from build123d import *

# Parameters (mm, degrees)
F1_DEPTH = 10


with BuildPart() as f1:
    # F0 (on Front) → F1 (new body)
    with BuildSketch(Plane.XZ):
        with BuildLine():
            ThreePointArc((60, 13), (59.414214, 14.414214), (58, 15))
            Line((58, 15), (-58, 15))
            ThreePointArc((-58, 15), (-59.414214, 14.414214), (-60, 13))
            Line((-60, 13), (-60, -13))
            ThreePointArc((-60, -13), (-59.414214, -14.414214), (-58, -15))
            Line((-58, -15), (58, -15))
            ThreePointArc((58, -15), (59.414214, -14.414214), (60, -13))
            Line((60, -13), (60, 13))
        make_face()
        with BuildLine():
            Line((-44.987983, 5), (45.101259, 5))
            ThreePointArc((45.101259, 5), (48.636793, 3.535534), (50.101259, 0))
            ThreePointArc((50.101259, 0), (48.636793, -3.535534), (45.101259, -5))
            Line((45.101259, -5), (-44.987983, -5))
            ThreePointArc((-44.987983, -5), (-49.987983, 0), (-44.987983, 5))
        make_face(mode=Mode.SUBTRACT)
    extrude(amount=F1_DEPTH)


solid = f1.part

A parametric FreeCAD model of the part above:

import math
import FreeCAD as App
import Part
import Sketcher

V = App.Vector
Q = App.Units.Quantity

doc = App.newDocument("Part")
body = doc.addObject("PartDesign::Body", "Body")

# Sketch on XZ plane
sketch1 = body.newObject("Sketcher::SketchObject", "Sketch")
sketch1.AttachmentSupport = (doc.getObject("XZ_Plane"), [""])
sketch1.MapMode = "FlatFace"
sketch1.addGeometry([
    Part.ArcOfCircle(Part.Circle(V(58, 13, 0), V(0, 0, 1), 2), math.radians(0), math.radians(90)),  # 0
    Part.LineSegment(V(58, 15, 0), V(-58, 15, 0)),  # 1
    Part.ArcOfCircle(Part.Circle(V(-58, 13, 0), V(0, 0, 1), 2), math.radians(90), math.radians(180)),  # 2
    Part.LineSegment(V(-60, 13, 0), V(-60, -13, 0)),  # 3
    Part.ArcOfCircle(Part.Circle(V(-58, -13, 0), V(0, 0, 1), 2), math.radians(180), math.radians(270)),  # 4
    Part.LineSegment(V(-58, -15, 0), V(58, -15, 0)),  # 5
    Part.ArcOfCircle(Part.Circle(V(58, -13, 0), V(0, 0, 1), 2), math.radians(-90), math.radians(0)),  # 6
    Part.LineSegment(V(60, -13, 0), V(60, 13, 0)),  # 7
    Part.ArcOfCircle(Part.Circle(V(-45, 0, 0), V(0, 0, 1), 5), math.radians(90), math.radians(270)),  # 8
    Part.LineSegment(V(-45, 5, 0), V(45.1, 5, 0)),  # 9
    Part.ArcOfCircle(Part.Circle(V(45.1, 0, 0), V(0, 0, 1), 5), math.radians(0), math.radians(90)),  # 10
    Part.ArcOfCircle(Part.Circle(V(45.1, 0, 0), V(0, 0, 1), 5), math.radians(-90), math.radians(0)),  # 11
    Part.LineSegment(V(45.1, -5, 0), V(-45, -5, 0)),  # 12
], False)
sketch1.addConstraint([
    Sketcher.Constraint("Tangent", 0, 2, 1, 1),
    Sketcher.Constraint("Tangent", 1, 2, 2, 1),
    Sketcher.Constraint("Tangent", 2, 2, 3, 1),
    Sketcher.Constraint("Tangent", 3, 2, 4, 1),
    Sketcher.Constraint("Tangent", 4, 2, 5, 1),
    Sketcher.Constraint("Tangent", 5, 2, 6, 1),
    Sketcher.Constraint("Tangent", 6, 2, 7, 1),
    Sketcher.Constraint("Tangent", 7, 2, 0, 1),
    Sketcher.Constraint("Tangent", 8, 1, 9, 1),
    Sketcher.Constraint("Tangent", 9, 2, 10, 2),
    Sketcher.Constraint("Tangent", 10, 1, 11, 2),
    Sketcher.Constraint("Tangent", 11, 1, 12, 1),
    Sketcher.Constraint("Tangent", 12, 2, 8, 2),
    Sketcher.Constraint("Horizontal", 1),
    Sketcher.Constraint("Vertical", 3),
    Sketcher.Constraint("Horizontal", 5),
    Sketcher.Constraint("Vertical", 7),
    Sketcher.Constraint("Horizontal", 9),
    Sketcher.Constraint("Horizontal", 12),
    Sketcher.Constraint("Equal", 0, 2),
    Sketcher.Constraint("Equal", 2, 4),
    Sketcher.Constraint("Equal", 4, 6),
    Sketcher.Constraint("Equal", 8, 10),
    Sketcher.Constraint("Symmetric", 0, 3, 4, 3, -1, 1),
    Sketcher.Constraint("PointOnObject", 8, 3, -1),
    Sketcher.Constraint("PointOnObject", 10, 1, -1),
    Sketcher.Constraint("Radius", 0, Q("1.999999 mm")),
    Sketcher.Constraint("Radius", 8, Q("5 mm")),
    Sketcher.Constraint("DistanceX", 1, 2, 1, 1, Q("116 mm")),
    Sketcher.Constraint("DistanceY", 3, 2, 3, 1, Q("26 mm")),
    Sketcher.Constraint("DistanceX", 9, 1, 9, 2, Q("90.089242 mm")),
    Sketcher.Constraint("DistanceX", -1, 1, 10, 3, Q("45.101259 mm")),
])
pad1 = body.newObject("PartDesign::Pad", "Pad")
pad1.Profile = sketch1
pad1.Length = 10

doc.recompute()
